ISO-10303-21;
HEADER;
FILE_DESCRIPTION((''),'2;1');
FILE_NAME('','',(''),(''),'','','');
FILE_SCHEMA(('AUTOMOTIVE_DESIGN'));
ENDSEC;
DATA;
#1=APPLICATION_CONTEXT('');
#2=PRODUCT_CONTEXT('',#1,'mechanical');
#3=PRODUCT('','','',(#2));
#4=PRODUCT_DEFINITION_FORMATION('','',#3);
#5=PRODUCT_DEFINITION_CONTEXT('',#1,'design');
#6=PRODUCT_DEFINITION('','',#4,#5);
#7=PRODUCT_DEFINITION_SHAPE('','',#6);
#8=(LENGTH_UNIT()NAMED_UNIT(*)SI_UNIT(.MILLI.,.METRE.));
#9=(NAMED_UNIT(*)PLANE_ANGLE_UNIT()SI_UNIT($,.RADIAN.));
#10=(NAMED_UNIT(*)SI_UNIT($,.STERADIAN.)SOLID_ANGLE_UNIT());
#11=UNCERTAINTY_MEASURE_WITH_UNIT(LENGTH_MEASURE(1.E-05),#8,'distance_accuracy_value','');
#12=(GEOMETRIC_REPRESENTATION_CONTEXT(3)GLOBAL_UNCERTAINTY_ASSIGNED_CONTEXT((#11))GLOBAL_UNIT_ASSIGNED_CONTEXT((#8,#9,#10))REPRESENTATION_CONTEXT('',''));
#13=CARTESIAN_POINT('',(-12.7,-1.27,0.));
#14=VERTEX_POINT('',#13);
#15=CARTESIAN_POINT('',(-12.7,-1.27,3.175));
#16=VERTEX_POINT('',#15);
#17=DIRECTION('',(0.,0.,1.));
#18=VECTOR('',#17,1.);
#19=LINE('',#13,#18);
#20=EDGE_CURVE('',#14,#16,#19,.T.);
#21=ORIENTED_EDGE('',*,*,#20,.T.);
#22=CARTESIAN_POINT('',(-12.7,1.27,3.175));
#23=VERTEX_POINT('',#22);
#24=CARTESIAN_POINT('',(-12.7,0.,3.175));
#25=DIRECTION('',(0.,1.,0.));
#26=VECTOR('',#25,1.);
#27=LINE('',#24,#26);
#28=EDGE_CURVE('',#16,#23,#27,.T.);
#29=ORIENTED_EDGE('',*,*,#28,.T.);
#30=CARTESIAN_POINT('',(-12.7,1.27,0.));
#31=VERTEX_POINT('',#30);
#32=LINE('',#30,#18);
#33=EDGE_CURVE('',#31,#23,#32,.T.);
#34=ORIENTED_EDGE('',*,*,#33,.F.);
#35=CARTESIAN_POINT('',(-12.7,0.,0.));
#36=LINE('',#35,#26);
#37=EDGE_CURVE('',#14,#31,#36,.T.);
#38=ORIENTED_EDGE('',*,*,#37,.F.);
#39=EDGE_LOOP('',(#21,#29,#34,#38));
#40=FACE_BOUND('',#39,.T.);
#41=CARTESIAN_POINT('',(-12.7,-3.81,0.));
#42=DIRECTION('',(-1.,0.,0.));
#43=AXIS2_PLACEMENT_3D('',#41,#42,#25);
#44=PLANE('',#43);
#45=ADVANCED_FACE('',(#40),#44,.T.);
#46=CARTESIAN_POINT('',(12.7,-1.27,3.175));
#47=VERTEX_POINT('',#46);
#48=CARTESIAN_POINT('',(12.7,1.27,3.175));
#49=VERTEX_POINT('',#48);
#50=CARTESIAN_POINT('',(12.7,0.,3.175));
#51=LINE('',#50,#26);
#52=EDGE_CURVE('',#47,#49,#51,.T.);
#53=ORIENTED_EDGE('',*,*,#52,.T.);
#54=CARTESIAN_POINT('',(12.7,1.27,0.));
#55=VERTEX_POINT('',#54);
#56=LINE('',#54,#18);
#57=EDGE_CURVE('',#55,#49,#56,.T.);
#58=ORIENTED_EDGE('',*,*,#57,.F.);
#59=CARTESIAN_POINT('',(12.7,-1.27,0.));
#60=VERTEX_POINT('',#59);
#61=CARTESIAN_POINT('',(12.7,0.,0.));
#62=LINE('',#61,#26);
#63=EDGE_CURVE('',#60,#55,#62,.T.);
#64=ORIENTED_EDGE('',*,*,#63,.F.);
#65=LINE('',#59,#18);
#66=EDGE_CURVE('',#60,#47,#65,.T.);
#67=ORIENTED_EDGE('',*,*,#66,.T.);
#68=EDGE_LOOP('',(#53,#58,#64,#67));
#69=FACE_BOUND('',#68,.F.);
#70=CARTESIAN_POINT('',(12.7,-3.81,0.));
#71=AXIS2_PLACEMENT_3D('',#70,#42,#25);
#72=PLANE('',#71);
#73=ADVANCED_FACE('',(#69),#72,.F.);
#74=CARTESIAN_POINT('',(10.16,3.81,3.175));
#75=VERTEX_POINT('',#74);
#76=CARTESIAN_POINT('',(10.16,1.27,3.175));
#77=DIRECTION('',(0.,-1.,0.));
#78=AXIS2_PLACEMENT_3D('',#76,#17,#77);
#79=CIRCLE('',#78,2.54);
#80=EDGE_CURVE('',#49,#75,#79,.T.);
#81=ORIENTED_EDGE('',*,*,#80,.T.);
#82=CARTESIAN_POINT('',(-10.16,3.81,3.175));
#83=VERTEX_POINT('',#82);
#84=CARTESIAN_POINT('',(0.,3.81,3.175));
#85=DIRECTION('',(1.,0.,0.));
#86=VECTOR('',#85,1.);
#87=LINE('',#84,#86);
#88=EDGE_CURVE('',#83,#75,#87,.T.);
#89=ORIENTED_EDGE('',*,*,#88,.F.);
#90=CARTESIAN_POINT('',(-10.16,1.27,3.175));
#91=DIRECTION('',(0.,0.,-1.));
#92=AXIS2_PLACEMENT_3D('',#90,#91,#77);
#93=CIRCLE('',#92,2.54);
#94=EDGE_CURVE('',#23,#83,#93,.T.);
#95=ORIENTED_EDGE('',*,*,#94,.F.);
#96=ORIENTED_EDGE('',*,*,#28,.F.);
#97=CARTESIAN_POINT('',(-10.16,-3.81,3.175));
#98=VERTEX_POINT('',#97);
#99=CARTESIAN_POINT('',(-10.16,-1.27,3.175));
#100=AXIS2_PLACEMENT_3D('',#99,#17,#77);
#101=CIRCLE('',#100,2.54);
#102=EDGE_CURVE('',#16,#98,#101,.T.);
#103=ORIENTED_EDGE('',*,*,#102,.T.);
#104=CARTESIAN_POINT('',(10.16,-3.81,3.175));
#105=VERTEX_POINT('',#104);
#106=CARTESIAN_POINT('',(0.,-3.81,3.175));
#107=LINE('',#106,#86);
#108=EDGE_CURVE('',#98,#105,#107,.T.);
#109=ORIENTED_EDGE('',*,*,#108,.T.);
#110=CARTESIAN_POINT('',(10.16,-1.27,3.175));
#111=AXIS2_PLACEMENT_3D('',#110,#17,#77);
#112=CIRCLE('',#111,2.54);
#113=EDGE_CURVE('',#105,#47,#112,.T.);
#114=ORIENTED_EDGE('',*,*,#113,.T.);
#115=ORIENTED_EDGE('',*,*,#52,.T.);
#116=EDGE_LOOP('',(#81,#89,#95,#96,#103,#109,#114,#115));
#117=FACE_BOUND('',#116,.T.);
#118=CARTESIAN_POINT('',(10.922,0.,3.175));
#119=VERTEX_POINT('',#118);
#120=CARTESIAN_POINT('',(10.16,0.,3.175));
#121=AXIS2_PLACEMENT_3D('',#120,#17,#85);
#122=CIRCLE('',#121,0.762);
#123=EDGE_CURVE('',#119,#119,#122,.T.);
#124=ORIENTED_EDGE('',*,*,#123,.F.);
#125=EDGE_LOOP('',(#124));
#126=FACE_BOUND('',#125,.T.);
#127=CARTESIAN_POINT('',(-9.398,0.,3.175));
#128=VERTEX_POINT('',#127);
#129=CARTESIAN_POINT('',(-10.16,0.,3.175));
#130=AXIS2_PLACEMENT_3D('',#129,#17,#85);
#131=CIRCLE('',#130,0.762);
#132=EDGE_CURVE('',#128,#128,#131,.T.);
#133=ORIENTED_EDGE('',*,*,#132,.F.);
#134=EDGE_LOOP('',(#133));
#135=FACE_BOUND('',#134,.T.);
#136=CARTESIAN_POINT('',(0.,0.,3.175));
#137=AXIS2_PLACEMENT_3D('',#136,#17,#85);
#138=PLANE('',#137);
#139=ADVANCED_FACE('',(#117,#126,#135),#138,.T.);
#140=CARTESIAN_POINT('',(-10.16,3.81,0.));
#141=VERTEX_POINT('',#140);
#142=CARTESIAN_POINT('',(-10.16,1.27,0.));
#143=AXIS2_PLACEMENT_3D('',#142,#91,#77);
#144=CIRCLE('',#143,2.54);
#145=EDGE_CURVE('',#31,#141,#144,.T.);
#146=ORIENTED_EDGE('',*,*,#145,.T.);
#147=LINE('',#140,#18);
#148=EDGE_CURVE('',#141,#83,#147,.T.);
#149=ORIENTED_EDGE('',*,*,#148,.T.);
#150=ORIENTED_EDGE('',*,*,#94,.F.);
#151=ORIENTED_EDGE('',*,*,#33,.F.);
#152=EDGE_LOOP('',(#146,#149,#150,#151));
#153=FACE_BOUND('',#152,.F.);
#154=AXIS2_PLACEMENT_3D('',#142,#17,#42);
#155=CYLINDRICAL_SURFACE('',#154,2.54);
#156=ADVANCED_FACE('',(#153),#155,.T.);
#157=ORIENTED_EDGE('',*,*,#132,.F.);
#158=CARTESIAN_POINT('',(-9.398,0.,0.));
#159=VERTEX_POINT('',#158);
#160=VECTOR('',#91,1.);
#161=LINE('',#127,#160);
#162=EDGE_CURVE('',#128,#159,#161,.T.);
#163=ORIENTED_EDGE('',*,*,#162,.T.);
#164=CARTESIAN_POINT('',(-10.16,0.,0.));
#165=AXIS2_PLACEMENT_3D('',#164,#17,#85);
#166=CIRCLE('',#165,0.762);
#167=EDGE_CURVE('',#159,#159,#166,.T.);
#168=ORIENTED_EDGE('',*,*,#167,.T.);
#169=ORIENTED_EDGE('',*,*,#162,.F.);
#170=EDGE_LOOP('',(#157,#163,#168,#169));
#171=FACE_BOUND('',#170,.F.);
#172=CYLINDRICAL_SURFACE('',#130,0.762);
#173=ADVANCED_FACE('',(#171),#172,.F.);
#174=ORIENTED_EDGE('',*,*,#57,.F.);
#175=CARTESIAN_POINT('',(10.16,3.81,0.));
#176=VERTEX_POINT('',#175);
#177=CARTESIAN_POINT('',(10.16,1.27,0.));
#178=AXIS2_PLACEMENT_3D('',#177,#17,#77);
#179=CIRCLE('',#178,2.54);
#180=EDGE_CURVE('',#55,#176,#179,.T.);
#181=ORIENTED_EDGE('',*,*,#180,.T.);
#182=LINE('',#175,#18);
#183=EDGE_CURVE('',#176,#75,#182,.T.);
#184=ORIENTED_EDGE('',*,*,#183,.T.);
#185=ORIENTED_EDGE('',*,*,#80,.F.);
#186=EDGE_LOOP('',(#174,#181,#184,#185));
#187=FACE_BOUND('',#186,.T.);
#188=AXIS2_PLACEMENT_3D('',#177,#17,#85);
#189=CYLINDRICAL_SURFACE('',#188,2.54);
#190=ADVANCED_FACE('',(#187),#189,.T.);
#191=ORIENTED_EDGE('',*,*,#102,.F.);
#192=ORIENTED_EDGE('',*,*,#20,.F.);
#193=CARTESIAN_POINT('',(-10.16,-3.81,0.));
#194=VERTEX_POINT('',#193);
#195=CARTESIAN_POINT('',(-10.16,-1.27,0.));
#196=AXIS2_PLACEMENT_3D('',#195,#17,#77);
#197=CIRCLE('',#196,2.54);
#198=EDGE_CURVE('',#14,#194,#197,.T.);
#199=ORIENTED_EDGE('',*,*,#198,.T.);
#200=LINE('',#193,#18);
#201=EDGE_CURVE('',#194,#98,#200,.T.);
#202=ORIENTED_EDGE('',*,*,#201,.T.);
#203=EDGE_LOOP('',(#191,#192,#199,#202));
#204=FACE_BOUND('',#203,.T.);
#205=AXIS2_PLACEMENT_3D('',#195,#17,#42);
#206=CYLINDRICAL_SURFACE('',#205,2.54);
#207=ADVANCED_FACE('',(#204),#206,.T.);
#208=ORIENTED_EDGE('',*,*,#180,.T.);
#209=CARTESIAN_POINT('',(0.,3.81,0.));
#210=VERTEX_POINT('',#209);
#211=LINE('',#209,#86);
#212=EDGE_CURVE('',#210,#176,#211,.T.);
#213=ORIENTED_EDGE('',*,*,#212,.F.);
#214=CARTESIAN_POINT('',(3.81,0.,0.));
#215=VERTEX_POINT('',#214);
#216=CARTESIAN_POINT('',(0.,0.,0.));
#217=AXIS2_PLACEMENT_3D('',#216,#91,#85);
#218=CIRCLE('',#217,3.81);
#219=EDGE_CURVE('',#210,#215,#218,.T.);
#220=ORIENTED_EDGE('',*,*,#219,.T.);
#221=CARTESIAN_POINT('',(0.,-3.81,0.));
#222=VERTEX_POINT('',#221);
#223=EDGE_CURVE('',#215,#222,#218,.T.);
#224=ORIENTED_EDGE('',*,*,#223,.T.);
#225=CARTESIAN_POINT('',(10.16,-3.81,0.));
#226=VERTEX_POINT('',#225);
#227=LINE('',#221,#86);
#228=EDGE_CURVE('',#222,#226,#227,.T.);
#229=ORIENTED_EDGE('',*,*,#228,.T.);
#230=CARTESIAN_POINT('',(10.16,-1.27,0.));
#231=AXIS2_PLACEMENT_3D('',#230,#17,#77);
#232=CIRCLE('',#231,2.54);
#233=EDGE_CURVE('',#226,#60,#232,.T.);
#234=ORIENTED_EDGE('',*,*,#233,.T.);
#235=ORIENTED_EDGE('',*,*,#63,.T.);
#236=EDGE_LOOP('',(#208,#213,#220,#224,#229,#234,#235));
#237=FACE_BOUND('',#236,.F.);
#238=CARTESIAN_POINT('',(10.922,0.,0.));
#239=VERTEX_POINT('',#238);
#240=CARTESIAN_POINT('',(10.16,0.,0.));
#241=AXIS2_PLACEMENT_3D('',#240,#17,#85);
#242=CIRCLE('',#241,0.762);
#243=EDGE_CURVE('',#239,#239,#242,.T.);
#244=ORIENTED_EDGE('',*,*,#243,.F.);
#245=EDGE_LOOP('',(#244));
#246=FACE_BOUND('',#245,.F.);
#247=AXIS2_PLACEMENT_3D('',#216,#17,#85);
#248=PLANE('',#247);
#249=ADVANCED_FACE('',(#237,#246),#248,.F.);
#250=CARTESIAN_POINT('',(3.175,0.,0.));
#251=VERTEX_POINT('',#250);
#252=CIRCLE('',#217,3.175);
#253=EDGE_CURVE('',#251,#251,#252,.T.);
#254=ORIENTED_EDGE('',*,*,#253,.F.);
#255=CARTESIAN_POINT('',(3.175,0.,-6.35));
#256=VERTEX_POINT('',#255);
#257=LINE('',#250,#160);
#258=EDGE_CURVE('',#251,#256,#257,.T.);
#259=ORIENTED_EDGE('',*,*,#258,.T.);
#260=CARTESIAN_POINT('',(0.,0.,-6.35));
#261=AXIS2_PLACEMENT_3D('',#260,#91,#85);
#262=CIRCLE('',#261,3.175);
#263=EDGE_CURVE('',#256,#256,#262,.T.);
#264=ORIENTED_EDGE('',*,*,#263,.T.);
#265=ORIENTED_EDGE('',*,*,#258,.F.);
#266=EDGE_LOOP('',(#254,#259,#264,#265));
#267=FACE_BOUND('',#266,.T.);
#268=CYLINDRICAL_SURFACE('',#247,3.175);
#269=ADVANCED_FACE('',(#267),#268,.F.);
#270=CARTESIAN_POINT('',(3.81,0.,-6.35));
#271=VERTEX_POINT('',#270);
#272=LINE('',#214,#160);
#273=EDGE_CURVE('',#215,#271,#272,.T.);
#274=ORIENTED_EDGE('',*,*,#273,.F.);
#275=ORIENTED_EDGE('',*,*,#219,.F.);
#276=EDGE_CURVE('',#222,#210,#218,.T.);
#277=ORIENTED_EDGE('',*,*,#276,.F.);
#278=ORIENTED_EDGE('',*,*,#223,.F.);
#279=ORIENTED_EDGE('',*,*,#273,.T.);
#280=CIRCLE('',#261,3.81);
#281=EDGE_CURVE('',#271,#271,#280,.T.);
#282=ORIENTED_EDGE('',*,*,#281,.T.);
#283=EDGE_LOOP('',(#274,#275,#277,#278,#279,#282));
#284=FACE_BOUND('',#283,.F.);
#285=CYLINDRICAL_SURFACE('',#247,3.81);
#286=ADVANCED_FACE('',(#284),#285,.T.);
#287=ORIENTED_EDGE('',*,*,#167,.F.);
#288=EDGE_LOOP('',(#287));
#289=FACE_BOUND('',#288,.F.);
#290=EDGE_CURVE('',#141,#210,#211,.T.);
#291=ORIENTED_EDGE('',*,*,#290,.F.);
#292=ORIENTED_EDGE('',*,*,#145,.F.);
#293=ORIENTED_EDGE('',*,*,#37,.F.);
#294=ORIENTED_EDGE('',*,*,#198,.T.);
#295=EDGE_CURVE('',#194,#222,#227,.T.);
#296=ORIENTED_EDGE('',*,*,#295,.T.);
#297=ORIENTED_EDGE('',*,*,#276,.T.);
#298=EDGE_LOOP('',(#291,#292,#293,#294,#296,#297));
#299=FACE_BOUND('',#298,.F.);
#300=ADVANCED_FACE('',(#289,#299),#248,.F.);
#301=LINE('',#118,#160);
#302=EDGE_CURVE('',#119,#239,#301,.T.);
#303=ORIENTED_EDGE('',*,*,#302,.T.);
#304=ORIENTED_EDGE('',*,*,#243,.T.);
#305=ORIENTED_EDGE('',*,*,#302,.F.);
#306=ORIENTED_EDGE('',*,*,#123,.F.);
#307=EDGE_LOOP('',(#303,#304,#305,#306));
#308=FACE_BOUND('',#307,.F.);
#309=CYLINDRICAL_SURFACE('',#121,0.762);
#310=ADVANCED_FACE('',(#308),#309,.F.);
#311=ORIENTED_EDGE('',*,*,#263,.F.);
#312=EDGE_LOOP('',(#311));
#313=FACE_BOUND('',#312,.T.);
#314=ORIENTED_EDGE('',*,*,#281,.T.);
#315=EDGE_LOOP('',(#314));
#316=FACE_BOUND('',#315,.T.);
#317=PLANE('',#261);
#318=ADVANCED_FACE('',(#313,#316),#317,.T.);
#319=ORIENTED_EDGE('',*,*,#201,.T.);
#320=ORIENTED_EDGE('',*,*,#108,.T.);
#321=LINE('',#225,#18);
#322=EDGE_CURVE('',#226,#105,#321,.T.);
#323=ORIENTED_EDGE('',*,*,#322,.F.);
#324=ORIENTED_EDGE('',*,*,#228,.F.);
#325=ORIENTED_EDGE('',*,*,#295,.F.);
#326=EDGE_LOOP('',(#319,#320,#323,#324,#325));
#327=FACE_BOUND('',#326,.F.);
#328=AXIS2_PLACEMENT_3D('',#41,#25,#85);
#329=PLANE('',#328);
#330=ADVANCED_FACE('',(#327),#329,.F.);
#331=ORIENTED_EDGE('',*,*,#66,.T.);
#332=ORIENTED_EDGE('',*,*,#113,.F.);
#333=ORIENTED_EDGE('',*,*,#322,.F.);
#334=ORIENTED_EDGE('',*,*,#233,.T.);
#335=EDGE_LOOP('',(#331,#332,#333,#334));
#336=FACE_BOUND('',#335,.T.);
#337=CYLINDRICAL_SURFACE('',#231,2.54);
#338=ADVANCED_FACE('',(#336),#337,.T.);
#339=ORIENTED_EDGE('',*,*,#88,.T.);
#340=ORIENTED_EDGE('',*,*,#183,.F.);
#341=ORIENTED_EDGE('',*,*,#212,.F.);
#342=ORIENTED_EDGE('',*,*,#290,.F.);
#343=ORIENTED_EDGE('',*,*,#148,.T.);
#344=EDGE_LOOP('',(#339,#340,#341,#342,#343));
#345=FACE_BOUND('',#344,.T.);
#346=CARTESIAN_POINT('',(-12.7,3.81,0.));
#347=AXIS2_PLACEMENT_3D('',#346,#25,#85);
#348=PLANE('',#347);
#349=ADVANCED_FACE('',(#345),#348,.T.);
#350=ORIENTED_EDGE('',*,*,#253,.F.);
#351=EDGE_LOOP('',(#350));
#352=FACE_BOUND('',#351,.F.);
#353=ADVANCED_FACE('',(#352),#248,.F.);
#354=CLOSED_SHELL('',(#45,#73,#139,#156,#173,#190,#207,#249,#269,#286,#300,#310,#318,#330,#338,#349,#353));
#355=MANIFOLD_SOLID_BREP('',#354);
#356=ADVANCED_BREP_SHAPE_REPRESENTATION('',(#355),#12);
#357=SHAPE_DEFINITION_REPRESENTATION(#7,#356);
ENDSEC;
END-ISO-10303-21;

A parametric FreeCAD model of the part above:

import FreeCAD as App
import Part
import Sketcher
Q = App.Units.Quantity


def edges_at(feature, points):
    """Names of the edges that pass closest to the given points."""
    edges = feature.Shape.Edges
    near = lambda p: min(range(len(edges)), key=lambda i: edges[i].distToShape(Part.Vertex(*p))[0])
    return sorted({f"Edge{near(p) + 1}" for p in points})

doc = App.newDocument("Part")
body = doc.addObject("PartDesign::Body", "Body")

# Sketch on XY plane
sketch1 = doc.addObject("Sketcher::SketchObject", "Sketch")
body.addObject(sketch1)
sketch1.AttachmentSupport = (doc.XY_Plane, [""])
sketch1.MapMode = "FlatFace"
sketch1.addGeometry(Part.LineSegment(App.Vector(-13, 4, 0), App.Vector(-13, -4, 0)), False)
sketch1.addGeometry(Part.LineSegment(App.Vector(-13, -4, 0), App.Vector(13, -4, 0)), False)
sketch1.addGeometry(Part.LineSegment(App.Vector(13, -4, 0), App.Vector(13, 4, 0)), False)
sketch1.addGeometry(Part.LineSegment(App.Vector(13, 4, 0), App.Vector(-13, 4, 0)), False)
sketch1.addConstraint(Sketcher.Constraint("Coincident", 0, 2, 1, 1))
sketch1.addConstraint(Sketcher.Constraint("Coincident", 1, 2, 2, 1))
sketch1.addConstraint(Sketcher.Constraint("Coincident", 2, 2, 3, 1))
sketch1.addConstraint(Sketcher.Constraint("Coincident", 3, 2, 0, 1))
sketch1.addConstraint(Sketcher.Constraint("Vertical", 0))
sketch1.addConstraint(Sketcher.Constraint("Horizontal", 1))
sketch1.addConstraint(Sketcher.Constraint("Vertical", 2))
sketch1.addConstraint(Sketcher.Constraint("Horizontal", 3))
sketch1.addConstraint(Sketcher.Constraint("Symmetric", 0, 2, 2, 2, -1, 1))
sketch1.addConstraint(Sketcher.Constraint("DistanceX", 1, 1, 1, 2, Q("1 in")))
sketch1.addConstraint(Sketcher.Constraint("DistanceY", 0, 2, 0, 1, Q("0.3 in")))
pad1 = doc.addObject("PartDesign::Pad", "Pad")
body.addObject(pad1)
pad1.Profile = sketch1
pad1.Length = Q("0.125 in")
doc.recompute()

fillet = doc.addObject("PartDesign::Fillet", "Fillet")
body.addObject(fillet)
fillet.Base = (pad1, edges_at(pad1, [
    (-12.7, -3.81, 1.587),
    (12.7, -3.81, 1.587),
    (12.7, 3.81, 1.587),
    (-12.7, 3.81, 1.587),
]))
fillet.Radius = Q("0.1 in")

# Sketch on XY plane
sketch2 = doc.addObject("Sketcher::SketchObject", "Sketch001")
body.addObject(sketch2)
sketch2.AttachmentSupport = (doc.XY_Plane, [""])
sketch2.MapMode = "FlatFace"
sketch2.addGeometry(Part.Circle(App.Vector(0, 0, 0), App.Vector(0, 0, 1), 3.8), False)
sketch2.addGeometry(Part.Circle(App.Vector(0, 0, 0), App.Vector(0, 0, 1), 3.2), False)
sketch2.addConstraint(Sketcher.Constraint("Coincident", 0, 3, -1, 1))
sketch2.addConstraint(Sketcher.Constraint("Coincident", 1, 3, -1, 1))
sketch2.addConstraint(Sketcher.Constraint("Diameter", 0, Q("0.3 in")))
sketch2.addConstraint(Sketcher.Constraint("Diameter", 1, Q("0.25 in")))
pad2 = doc.addObject("PartDesign::Pad", "Pad001")
body.addObject(pad2)
pad2.Profile = sketch2
pad2.Length = Q("0.25 in")
pad2.Reversed = True

# Sketch on XY plane
sketch3 = doc.addObject("Sketcher::SketchObject", "Sketch002")
body.addObject(sketch3)
sketch3.AttachmentSupport = (doc.XY_Plane, [""])
sketch3.MapMode = "FlatFace"
sketch3.AttachmentOffset = App.Placement(App.Vector(0, 0, 0.125 * 25.4), App.Rotation())
sketch3.addGeometry(Part.Circle(App.Vector(-10.2, 0, 0), App.Vector(0, 0, 1), 0.8), False)
sketch3.addGeometry(Part.Circle(App.Vector(10.2, 0, 0), App.Vector(0, 0, 1), 0.8), False)
sketch3.addConstraint(Sketcher.Constraint("Equal", 0, 1))
sketch3.addConstraint(Sketcher.Constraint("Symmetric", 0, 3, 1, 3, -1, 1))
sketch3.addConstraint(Sketcher.Constraint("PointOnObject", 0, 3, -1))
sketch3.addConstraint(Sketcher.Constraint("Diameter", 0, Q("0.06 in")))
sketch3.addConstraint(Sketcher.Constraint("DistanceX", 0, 3, -1, 1, Q("0.4 in")))
pocket1 = doc.addObject("PartDesign::Pocket", "Pocket")
body.addObject(pocket1)
pocket1.Profile = sketch3
pocket1.Type = "ThroughAll"

doc.recompute()
